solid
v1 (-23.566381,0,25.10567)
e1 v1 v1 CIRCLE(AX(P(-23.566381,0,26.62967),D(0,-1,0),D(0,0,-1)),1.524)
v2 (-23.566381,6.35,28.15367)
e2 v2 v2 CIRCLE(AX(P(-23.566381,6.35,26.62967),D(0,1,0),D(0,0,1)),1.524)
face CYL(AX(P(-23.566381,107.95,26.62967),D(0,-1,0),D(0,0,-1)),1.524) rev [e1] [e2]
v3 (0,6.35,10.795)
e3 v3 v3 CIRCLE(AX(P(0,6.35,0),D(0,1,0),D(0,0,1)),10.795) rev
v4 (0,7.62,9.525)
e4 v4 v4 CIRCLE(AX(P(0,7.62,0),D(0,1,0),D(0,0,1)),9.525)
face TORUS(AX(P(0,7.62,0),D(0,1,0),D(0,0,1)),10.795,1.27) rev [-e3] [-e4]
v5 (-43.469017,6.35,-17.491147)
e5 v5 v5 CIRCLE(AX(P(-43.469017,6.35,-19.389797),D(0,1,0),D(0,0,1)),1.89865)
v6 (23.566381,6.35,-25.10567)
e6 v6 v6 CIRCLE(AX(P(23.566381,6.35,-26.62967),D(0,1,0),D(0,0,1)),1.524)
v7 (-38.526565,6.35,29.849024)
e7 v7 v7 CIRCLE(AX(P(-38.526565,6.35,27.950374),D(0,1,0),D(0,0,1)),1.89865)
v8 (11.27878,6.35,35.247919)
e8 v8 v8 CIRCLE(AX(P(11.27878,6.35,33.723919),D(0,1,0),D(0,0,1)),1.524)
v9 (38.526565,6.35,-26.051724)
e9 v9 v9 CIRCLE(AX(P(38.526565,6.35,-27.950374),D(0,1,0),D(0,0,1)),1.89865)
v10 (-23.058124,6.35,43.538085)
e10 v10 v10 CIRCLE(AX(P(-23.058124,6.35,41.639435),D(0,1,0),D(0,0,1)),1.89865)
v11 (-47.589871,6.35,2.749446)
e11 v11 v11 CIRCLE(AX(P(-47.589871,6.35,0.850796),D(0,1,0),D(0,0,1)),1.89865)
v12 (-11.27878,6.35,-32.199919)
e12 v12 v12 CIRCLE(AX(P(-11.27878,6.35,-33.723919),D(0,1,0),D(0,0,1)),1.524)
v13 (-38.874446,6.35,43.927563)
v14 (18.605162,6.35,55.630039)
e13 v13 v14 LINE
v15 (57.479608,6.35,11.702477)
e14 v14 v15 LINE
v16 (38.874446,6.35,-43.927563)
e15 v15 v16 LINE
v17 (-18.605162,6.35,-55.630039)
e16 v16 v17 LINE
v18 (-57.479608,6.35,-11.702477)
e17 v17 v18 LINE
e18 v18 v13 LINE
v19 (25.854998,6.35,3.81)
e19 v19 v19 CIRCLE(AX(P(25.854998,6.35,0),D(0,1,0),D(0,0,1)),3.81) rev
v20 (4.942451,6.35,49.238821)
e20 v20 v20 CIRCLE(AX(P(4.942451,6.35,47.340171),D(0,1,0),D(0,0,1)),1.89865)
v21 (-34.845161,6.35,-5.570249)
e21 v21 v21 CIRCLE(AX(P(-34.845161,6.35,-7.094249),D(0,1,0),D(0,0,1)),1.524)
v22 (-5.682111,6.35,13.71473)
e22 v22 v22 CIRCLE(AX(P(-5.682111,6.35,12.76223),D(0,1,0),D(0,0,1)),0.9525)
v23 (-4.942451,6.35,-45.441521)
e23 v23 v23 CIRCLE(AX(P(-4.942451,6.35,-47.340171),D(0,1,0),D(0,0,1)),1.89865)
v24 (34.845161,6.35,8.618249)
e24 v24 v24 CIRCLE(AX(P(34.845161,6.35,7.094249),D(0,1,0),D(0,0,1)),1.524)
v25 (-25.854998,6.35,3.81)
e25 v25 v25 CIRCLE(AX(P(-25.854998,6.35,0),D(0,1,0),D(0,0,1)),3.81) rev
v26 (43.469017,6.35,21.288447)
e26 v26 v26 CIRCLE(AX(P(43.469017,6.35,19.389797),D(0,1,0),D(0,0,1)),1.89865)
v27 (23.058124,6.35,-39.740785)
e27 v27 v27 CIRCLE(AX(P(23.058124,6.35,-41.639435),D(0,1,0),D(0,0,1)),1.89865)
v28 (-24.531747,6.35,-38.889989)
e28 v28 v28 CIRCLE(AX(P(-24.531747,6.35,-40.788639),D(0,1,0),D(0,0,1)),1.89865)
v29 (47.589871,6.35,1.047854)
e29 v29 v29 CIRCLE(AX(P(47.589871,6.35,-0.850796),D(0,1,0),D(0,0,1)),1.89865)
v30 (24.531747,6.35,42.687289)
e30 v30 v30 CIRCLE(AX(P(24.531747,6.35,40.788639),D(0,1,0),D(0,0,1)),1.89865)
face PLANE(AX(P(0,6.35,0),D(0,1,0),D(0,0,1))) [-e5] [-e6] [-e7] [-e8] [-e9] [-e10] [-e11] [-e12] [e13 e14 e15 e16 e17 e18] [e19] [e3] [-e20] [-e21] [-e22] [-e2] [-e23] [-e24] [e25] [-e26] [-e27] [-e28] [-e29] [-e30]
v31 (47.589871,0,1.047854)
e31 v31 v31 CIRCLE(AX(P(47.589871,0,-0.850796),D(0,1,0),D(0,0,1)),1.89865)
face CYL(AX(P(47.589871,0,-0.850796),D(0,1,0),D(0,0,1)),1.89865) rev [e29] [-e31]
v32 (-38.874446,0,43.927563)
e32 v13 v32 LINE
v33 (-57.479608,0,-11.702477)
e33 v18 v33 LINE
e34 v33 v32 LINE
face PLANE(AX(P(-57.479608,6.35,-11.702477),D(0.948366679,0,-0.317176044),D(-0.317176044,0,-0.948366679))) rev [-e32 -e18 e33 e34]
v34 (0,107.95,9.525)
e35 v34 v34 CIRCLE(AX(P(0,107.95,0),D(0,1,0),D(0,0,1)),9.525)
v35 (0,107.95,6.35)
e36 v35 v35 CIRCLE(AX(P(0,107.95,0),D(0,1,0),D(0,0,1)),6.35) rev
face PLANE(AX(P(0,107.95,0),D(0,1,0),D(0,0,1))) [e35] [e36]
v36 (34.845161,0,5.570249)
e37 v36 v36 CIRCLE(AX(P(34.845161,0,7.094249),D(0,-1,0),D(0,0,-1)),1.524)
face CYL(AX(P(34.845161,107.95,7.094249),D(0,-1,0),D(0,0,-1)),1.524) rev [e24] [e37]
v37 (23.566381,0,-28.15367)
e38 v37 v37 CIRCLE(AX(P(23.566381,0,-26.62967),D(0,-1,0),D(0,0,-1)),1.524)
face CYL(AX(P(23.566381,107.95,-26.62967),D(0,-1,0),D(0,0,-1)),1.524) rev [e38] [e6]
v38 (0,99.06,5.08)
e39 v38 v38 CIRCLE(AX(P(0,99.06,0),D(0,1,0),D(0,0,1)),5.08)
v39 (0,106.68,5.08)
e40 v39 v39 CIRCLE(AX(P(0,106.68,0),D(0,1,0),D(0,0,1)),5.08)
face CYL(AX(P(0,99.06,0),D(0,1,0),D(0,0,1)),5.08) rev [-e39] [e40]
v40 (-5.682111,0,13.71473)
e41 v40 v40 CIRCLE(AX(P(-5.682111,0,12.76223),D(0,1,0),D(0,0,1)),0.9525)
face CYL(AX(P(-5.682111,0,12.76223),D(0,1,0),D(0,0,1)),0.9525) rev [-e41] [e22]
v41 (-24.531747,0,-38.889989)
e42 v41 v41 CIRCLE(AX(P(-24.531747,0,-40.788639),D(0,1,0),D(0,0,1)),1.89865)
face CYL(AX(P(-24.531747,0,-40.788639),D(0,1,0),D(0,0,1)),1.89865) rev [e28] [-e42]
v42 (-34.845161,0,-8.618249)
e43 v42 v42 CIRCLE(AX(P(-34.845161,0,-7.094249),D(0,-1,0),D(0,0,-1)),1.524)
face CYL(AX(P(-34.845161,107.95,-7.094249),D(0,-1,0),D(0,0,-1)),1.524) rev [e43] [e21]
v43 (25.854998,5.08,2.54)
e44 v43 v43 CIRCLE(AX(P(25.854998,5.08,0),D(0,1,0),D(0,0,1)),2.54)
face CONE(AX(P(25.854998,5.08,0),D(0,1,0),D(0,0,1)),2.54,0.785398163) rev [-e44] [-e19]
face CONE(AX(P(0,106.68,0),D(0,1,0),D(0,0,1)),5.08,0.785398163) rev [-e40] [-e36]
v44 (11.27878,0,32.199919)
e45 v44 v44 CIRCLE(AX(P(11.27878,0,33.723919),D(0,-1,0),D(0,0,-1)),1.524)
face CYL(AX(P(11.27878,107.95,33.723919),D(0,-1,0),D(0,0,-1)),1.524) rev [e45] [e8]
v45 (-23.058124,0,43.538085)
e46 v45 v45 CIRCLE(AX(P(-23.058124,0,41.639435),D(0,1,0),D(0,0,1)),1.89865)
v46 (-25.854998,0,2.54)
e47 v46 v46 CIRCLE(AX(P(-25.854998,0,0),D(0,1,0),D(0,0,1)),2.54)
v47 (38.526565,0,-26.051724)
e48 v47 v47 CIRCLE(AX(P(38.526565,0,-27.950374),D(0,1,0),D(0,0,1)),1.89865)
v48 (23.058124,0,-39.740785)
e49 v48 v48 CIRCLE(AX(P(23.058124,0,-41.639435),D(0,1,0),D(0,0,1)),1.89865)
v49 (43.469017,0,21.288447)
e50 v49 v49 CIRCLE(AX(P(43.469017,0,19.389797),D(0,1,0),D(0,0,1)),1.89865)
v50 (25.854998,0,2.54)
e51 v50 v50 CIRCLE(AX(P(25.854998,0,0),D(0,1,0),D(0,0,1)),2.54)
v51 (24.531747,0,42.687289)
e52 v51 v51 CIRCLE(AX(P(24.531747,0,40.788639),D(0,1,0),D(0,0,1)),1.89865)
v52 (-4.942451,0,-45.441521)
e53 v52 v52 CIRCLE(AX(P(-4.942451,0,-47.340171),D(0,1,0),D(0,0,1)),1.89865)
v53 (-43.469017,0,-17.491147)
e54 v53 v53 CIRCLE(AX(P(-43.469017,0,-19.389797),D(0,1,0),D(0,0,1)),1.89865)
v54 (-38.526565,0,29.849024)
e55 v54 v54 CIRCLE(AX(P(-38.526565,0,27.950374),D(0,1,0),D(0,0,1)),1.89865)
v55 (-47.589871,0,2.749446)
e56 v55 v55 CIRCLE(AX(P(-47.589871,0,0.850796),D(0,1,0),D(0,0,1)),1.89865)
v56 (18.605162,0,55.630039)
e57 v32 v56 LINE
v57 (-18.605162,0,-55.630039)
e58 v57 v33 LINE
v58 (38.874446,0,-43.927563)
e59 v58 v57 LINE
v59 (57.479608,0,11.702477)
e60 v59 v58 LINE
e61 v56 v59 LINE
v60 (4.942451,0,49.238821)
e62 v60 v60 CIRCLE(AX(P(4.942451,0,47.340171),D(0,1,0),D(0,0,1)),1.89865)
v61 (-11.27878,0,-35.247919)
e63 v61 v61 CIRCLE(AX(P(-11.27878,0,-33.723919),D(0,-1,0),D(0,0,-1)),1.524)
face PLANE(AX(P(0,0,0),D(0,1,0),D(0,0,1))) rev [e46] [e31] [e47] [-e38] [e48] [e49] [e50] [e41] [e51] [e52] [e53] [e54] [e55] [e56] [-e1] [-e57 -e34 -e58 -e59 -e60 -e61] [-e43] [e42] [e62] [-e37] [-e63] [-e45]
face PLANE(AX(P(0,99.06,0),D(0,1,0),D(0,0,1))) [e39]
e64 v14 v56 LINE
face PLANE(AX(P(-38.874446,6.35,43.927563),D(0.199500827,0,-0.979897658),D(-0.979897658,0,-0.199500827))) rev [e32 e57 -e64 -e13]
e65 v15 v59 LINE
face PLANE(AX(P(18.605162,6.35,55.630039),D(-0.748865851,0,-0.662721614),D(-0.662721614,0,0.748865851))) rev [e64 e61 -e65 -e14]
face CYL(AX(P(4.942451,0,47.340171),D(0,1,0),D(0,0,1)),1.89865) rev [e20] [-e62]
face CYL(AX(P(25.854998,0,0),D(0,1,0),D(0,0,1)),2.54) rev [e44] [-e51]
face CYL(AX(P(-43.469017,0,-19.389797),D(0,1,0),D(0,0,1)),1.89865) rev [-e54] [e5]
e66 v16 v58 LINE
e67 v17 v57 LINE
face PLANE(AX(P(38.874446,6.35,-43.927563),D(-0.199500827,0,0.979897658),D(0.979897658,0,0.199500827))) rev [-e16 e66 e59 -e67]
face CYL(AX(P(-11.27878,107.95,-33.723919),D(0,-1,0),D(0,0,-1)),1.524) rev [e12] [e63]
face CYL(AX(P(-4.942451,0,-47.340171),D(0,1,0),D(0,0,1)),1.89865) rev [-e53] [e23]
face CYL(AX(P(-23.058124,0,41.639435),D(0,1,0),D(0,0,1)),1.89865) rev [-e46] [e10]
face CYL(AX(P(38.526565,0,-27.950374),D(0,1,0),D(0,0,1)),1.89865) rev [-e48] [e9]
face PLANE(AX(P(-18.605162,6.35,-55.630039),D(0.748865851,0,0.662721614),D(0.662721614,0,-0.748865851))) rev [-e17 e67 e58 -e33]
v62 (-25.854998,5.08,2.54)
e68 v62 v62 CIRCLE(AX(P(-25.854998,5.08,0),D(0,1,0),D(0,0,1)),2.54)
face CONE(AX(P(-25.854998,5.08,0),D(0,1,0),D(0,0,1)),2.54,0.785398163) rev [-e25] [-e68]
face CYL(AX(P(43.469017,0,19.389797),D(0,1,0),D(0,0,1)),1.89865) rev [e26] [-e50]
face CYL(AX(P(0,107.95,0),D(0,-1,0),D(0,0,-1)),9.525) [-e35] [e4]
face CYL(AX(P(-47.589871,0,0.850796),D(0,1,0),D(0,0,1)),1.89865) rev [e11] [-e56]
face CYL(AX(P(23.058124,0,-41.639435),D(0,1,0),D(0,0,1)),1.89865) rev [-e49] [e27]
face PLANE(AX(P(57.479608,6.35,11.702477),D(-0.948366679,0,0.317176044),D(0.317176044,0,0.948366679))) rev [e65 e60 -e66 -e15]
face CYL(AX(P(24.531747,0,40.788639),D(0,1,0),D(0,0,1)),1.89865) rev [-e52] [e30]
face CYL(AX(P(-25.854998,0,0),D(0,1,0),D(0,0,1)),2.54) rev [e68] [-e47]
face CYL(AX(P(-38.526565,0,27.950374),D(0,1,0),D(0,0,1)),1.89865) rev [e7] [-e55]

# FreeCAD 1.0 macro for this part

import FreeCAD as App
import Part
import Sketcher
from FreeCAD import Vector
Q = App.Units.Quantity


def edges_at(feature, points):
    """Names of the edges that pass closest to the given points."""
    edges = feature.Shape.Edges
    near = lambda p: min(range(len(edges)), key=lambda i: edges[i].distToShape(Part.Vertex(*p))[0])
    return sorted({f"Edge{near(p) + 1}" for p in points})

doc = App.newDocument("Part")
body = doc.addObject("PartDesign::Body", "Body")

# Sketch on XZ plane
sketch1 = body.newObject("Sketcher::SketchObject", "Sketch")
sketch1.AttachmentSupport = (doc.getObject("XZ_Plane"), [""])
sketch1.MapMode = "FlatFace"
sketch1.addGeometry([
    Part.LineSegment(Vector(19, 56, 0), Vector(57, 12, 0)),  # 0
    Part.LineSegment(Vector(57, 12, 0), Vector(39, -44, 0)),  # 1
    Part.LineSegment(Vector(39, -44, 0), Vector(-19, -56, 0)),  # 2
    Part.LineSegment(Vector(-19, -56, 0), Vector(-57, -12, 0)),  # 3
    Part.LineSegment(Vector(-57, -12, 0), Vector(-39, 44, 0)),  # 4
    Part.LineSegment(Vector(-39, 44, 0), Vector(19, 56, 0)),  # 5
], False)
sketch1.addConstraint([
    Sketcher.Constraint("Coincident", 0, 2, 1, 1),
    Sketcher.Constraint("Coincident", 1, 2, 2, 1),
    Sketcher.Constraint("Coincident", 2, 2, 3, 1),
    Sketcher.Constraint("Coincident", 3, 2, 4, 1),
    Sketcher.Constraint("Coincident", 4, 2, 5, 1),
    Sketcher.Constraint("Coincident", 5, 2, 0, 1),
    Sketcher.Constraint("Symmetric", 0, 2, 3, 2, -1, 1),
    Sketcher.Constraint("Symmetric", 1, 2, 4, 2, -1, 1),
    Sketcher.Constraint("Symmetric", 2, 2, 5, 2, -1, 1),
    Sketcher.Constraint("Equal", 0, 1),
    Sketcher.Constraint("Equal", 1, 2),
    Sketcher.Constraint("DistanceX", -1, 1, 0, 2, 57.479608),
    Sketcher.Constraint("DistanceY", 2, 2, -1, 1, 55.630039),
    Sketcher.Constraint("DistanceY", 1, 2, 0, 2, 55.630039),
    Sketcher.Constraint("DistanceX", 2, 2, 1, 2, 57.479608),
])
pad1 = body.newObject("PartDesign::Pad", "Pad")
pad1.Profile = sketch1
pad1.Length = Q("0.25 in")
pad1.Reversed = True

# Sketch on XZ plane
sketch2 = body.newObject("Sketcher::SketchObject", "Sketch001")
sketch2.AttachmentSupport = (doc.getObject("XZ_Plane"), [""])
sketch2.MapMode = "FlatFace"
sketch2.AttachmentOffset = App.Placement(Vector(0, 0, -0.25 * 25.4), App.Rotation())
sketch2.addGeometry(Part.Circle(Vector(0, 0, 0), Vector(0, 0, 1), 10), False)
sketch2.addConstraint([
    Sketcher.Constraint("Coincident", 0, 3, -1, 1),
    Sketcher.Constraint("Diameter", 0, Q("0.75 in")),
])
pad2 = body.newObject("PartDesign::Pad", "Pad001")
pad2.Profile = sketch2
pad2.Length = Q("4 in")
pad2.Reversed = True
doc.recompute()

fillet = body.newObject("PartDesign::Fillet", "Fillet")
fillet.Base = (pad2, edges_at(pad2, [(0, 6.35, -9.525)]))
fillet.Radius = Q("0.05 in")

# Sketch on XZ plane
sketch3 = body.newObject("Sketcher::SketchObject", "Sketch002")
sketch3.AttachmentSupport = (doc.getObject("XZ_Plane"), [""])
sketch3.MapMode = "FlatFace"
sketch3.AttachmentOffset = App.Placement(Vector(0, 0, -4.25 * 25.4), App.Rotation())
sketch3.addGeometry(Part.Circle(Vector(0, 0, 0), Vector(0, 0, 1), 5), False)
sketch3.addConstraint([
    Sketcher.Constraint("Coincident", 0, 3, -1, 1),
    Sketcher.Constraint("Diameter", 0, Q("0.4 in")),
])
pocket1 = body.newObject("PartDesign::Pocket", "Pocket")
pocket1.Profile = sketch3
pocket1.Length = Q("0.35 in")
pocket1.Reversed = True
doc.recompute()

chamfer = body.newObject("PartDesign::Chamfer", "Chamfer")
chamfer.Base = (pocket1, edges_at(pocket1, [(0, 107.95, -5.08)]))
chamfer.Size = Q("0.05 in")

# Sketch on XZ plane
sketch4 = body.newObject("Sketcher::SketchObject", "Sketch003")
sketch4.AttachmentSupport = (doc.getObject("XZ_Plane"), [""])
sketch4.MapMode = "FlatFace"
sketch4.AttachmentOffset = App.Placement(Vector(0, 0, -0.25 * 25.4), App.Rotation())
sketch4.addGeometry(Part.Circle(Vector(-5.7, 12.8, 0), Vector(0, 0, 1), 1), False)
sketch4.addConstraint([
    Sketcher.Constraint("Diameter", 0, Q("0.075 in")),
    Sketcher.Constraint("DistanceX", 0, 3, -1, 1, 5.682111),
    Sketcher.Constraint("DistanceY", -1, 1, 0, 3, 12.76223),
])
pocket2 = body.newObject("PartDesign::Pocket", "Pocket001")
pocket2.Profile = sketch4
pocket2.Type = "ThroughAll"
pocket2.Reversed = True

# Sketch on XZ plane
sketch5 = body.newObject("Sketcher::SketchObject", "Sketch004")
sketch5.AttachmentSupport = (doc.getObject("XZ_Plane"), [""])
sketch5.MapMode = "FlatFace"
sketch5.AttachmentOffset = App.Placement(Vector(0, 0, -0.25 * 25.4), App.Rotation())
sketch5.addGeometry([
    Part.Circle(Vector(-25.9, 0, 0), Vector(0, 0, 1), 2.5),
    Part.Circle(Vector(25.9, 0, 0), Vector(0, 0, 1), 2.5),
], False)
sketch5.addConstraint([
    Sketcher.Constraint("Equal", 0, 1),
    Sketcher.Constraint("Symmetric", 0, 3, 1, 3, -1, 1),
    Sketcher.Constraint("PointOnObject", 0, 3, -1),
    Sketcher.Constraint("Diameter", 0, Q("0.2 in")),
    Sketcher.Constraint("DistanceX", 0, 3, -1, 1, 25.854998),
])
pocket3 = body.newObject("PartDesign::Pocket", "Pocket002")
pocket3.Profile = sketch5
pocket3.Type = "ThroughAll"
pocket3.Reversed = True
doc.recompute()

chamfer2 = body.newObject("PartDesign::Chamfer", "Chamfer001")
chamfer2.Base = (pocket3, edges_at(pocket3, [(-25.855, 6.35, -2.54), (25.855, 6.35, -2.54)]))
chamfer2.Size = Q("0.05 in")

# Sketch on XZ plane
sketch6 = body.newObject("Sketcher::SketchObject", "Sketch005")
sketch6.AttachmentSupport = (doc.getObject("XZ_Plane"), [""])
sketch6.MapMode = "FlatFace"
sketch6.addGeometry([
    Part.Circle(Vector(11.3, 33.7, 0), Vector(0, 0, 1), 1.5),  # 0
    Part.Circle(Vector(34.8, 7.1, 0), Vector(0, 0, 1), 1.5),  # 1
    Part.Circle(Vector(23.6, -26.6, 0), Vector(0, 0, 1), 1.5),  # 2
    Part.Circle(Vector(-11.3, -33.7, 0), Vector(0, 0, 1), 1.5),  # 3
    Part.Circle(Vector(-34.8, -7.1, 0), Vector(0, 0, 1), 1.5),  # 4
    Part.Circle(Vector(-23.6, 26.6, 0), Vector(0, 0, 1), 1.5),  # 5
], False)
sketch6.addConstraint([
    Sketcher.Constraint("Equal", 0, 1),
    Sketcher.Constraint("Equal", 1, 2),
    Sketcher.Constraint("Equal", 2, 3),
    Sketcher.Constraint("Equal", 3, 4),
    Sketcher.Constraint("Equal", 4, 5),
    Sketcher.Constraint("Symmetric", 0, 3, 3, 3, -1, 1),
    Sketcher.Constraint("Symmetric", 1, 3, 4, 3, -1, 1),
    Sketcher.Constraint("Symmetric", 2, 3, 5, 3, -1, 1),
    Sketcher.Constraint("Diameter", 0, Q("0.12 in")),
    Sketcher.Constraint("DistanceX", 0, 3, 2, 3, 12.2876),
    Sketcher.Constraint("DistanceY", 4, 3, 1, 3, 14.188499),
    Sketcher.Constraint("DistanceX", -1, 1, 0, 3, 11.27878),
    Sketcher.Constraint("DistanceY", -1, 1, 0, 3, 33.723919),
    Sketcher.Constraint("DistanceX", -1, 1, 1, 3, 34.845161),
    Sketcher.Constraint("DistanceY", 2, 3, -1, 1, 26.62967),
])
pocket4 = body.newObject("PartDesign::Pocket", "Pocket003")
pocket4.Profile = sketch6
pocket4.Type = "ThroughAll"

# Sketch on XZ plane
sketch7 = body.newObject("Sketcher::SketchObject", "Sketch006")
sketch7.AttachmentSupport = (doc.getObject("XZ_Plane"), [""])
sketch7.MapMode = "FlatFace"
sketch7.AttachmentOffset = App.Placement(Vector(0, 0, -0.25 * 25.4), App.Rotation())
sketch7.addGeometry([
    Part.Circle(Vector(-47.6, 0.9, 0), Vector(0, 0, 1), 1.9),  # 0
    Part.Circle(Vector(-38.5, 28, 0), Vector(0, 0, 1), 1.9),  # 1
    Part.Circle(Vector(-43.5, -19.4, 0), Vector(0, 0, 1), 1.9),  # 2
    Part.Circle(Vector(-24.5, -40.8, 0), Vector(0, 0, 1), 1.9),  # 3
    Part.Circle(Vector(-4.9, -47.3, 0), Vector(0, 0, 1), 1.9),  # 4
    Part.Circle(Vector(23.1, -41.6, 0), Vector(0, 0, 1), 1.9),  # 5
    Part.Circle(Vector(38.5, -28, 0), Vector(0, 0, 1), 1.9),  # 6
    Part.Circle(Vector(47.6, -0.9, 0), Vector(0, 0, 1), 1.9),  # 7
    Part.Circle(Vector(43.5, 19.4, 0), Vector(0, 0, 1), 1.9),  # 8
    Part.Circle(Vector(24.5, 40.8, 0), Vector(0, 0, 1), 1.9),  # 9
    Part.Circle(Vector(4.9, 47.3, 0), Vector(0, 0, 1), 1.9),  # 10
    Part.Circle(Vector(-23.1, 41.6, 0), Vector(0, 0, 1), 1.9),  # 11
], False)
sketch7.addConstraint([
    Sketcher.Constraint("Equal", 0, 1),
    Sketcher.Constraint("Equal", 1, 2),
    Sketcher.Constraint("Equal", 2, 3),
    Sketcher.Constraint("Equal", 3, 4),
    Sketcher.Constraint("Equal", 4, 5),
    Sketcher.Constraint("Equal", 5, 6),
    Sketcher.Constraint("Equal", 6, 7),
    Sketcher.Constraint("Equal", 7, 8),
    Sketcher.Constraint("Equal", 8, 9),
    Sketcher.Constraint("Equal", 9, 10),
    Sketcher.Constraint("Equal", 10, 11),
    Sketcher.Constraint("Symmetric", 1, 3, 6, 3, -1, 1),
    Sketcher.Constraint("Symmetric", 0, 3, 7, 3, -1, 1),
    Sketcher.Constraint("Symmetric", 2, 3, 8, 3, -1, 1),
    Sketcher.Constraint("Symmetric", 3, 3, 9, 3, -1, 1),
    Sketcher.Constraint("Symmetric", 4, 3, 10, 3, -1, 1),
    Sketcher.Constraint("Symmetric", 5, 3, 11, 3, -1, 1),
    Sketcher.Constraint("Diameter", 0, Q("0.1495 in")),
    Sketcher.Constraint("DistanceX", -1, 1, 5, 3, Q("0.9078002 in")),
    Sketcher.Constraint("DistanceX", 0, 3, 3, 3, Q("0.9078002 in")),
    Sketcher.Constraint("DistanceX", 0, 3, -1, 1, 47.589871),
    Sketcher.Constraint("DistanceY", 3, 3, -1, 1, 40.788639),
    Sketcher.Constraint("DistanceX", 4, 3, -1, 1, 4.942451),
    Sketcher.Constraint("DistanceY", 4, 3, -1, 1, 47.340171),
    Sketcher.Constraint("DistanceX", 2, 3, 1, 3, 4.942451),
    Sketcher.Constraint("DistanceY", 2, 3, 1, 3, 47.340171),
    Sketcher.Constraint("DistanceX", 2, 3, 3, 3, 18.93727),
    Sketcher.Constraint("DistanceY", 3, 3, 2, 3, 21.398842),
    Sketcher.Constraint("DistanceY", 5, 3, 2, 3, 22.249638),
    Sketcher.Constraint("DistanceY", 5, 3, 0, 3, 42.490232),
])
pocket5 = body.newObject("PartDesign::Pocket", "Pocket004")
pocket5.Profile = sketch7
pocket5.Type = "ThroughAll"
pocket5.Reversed = True

doc.recompute()
